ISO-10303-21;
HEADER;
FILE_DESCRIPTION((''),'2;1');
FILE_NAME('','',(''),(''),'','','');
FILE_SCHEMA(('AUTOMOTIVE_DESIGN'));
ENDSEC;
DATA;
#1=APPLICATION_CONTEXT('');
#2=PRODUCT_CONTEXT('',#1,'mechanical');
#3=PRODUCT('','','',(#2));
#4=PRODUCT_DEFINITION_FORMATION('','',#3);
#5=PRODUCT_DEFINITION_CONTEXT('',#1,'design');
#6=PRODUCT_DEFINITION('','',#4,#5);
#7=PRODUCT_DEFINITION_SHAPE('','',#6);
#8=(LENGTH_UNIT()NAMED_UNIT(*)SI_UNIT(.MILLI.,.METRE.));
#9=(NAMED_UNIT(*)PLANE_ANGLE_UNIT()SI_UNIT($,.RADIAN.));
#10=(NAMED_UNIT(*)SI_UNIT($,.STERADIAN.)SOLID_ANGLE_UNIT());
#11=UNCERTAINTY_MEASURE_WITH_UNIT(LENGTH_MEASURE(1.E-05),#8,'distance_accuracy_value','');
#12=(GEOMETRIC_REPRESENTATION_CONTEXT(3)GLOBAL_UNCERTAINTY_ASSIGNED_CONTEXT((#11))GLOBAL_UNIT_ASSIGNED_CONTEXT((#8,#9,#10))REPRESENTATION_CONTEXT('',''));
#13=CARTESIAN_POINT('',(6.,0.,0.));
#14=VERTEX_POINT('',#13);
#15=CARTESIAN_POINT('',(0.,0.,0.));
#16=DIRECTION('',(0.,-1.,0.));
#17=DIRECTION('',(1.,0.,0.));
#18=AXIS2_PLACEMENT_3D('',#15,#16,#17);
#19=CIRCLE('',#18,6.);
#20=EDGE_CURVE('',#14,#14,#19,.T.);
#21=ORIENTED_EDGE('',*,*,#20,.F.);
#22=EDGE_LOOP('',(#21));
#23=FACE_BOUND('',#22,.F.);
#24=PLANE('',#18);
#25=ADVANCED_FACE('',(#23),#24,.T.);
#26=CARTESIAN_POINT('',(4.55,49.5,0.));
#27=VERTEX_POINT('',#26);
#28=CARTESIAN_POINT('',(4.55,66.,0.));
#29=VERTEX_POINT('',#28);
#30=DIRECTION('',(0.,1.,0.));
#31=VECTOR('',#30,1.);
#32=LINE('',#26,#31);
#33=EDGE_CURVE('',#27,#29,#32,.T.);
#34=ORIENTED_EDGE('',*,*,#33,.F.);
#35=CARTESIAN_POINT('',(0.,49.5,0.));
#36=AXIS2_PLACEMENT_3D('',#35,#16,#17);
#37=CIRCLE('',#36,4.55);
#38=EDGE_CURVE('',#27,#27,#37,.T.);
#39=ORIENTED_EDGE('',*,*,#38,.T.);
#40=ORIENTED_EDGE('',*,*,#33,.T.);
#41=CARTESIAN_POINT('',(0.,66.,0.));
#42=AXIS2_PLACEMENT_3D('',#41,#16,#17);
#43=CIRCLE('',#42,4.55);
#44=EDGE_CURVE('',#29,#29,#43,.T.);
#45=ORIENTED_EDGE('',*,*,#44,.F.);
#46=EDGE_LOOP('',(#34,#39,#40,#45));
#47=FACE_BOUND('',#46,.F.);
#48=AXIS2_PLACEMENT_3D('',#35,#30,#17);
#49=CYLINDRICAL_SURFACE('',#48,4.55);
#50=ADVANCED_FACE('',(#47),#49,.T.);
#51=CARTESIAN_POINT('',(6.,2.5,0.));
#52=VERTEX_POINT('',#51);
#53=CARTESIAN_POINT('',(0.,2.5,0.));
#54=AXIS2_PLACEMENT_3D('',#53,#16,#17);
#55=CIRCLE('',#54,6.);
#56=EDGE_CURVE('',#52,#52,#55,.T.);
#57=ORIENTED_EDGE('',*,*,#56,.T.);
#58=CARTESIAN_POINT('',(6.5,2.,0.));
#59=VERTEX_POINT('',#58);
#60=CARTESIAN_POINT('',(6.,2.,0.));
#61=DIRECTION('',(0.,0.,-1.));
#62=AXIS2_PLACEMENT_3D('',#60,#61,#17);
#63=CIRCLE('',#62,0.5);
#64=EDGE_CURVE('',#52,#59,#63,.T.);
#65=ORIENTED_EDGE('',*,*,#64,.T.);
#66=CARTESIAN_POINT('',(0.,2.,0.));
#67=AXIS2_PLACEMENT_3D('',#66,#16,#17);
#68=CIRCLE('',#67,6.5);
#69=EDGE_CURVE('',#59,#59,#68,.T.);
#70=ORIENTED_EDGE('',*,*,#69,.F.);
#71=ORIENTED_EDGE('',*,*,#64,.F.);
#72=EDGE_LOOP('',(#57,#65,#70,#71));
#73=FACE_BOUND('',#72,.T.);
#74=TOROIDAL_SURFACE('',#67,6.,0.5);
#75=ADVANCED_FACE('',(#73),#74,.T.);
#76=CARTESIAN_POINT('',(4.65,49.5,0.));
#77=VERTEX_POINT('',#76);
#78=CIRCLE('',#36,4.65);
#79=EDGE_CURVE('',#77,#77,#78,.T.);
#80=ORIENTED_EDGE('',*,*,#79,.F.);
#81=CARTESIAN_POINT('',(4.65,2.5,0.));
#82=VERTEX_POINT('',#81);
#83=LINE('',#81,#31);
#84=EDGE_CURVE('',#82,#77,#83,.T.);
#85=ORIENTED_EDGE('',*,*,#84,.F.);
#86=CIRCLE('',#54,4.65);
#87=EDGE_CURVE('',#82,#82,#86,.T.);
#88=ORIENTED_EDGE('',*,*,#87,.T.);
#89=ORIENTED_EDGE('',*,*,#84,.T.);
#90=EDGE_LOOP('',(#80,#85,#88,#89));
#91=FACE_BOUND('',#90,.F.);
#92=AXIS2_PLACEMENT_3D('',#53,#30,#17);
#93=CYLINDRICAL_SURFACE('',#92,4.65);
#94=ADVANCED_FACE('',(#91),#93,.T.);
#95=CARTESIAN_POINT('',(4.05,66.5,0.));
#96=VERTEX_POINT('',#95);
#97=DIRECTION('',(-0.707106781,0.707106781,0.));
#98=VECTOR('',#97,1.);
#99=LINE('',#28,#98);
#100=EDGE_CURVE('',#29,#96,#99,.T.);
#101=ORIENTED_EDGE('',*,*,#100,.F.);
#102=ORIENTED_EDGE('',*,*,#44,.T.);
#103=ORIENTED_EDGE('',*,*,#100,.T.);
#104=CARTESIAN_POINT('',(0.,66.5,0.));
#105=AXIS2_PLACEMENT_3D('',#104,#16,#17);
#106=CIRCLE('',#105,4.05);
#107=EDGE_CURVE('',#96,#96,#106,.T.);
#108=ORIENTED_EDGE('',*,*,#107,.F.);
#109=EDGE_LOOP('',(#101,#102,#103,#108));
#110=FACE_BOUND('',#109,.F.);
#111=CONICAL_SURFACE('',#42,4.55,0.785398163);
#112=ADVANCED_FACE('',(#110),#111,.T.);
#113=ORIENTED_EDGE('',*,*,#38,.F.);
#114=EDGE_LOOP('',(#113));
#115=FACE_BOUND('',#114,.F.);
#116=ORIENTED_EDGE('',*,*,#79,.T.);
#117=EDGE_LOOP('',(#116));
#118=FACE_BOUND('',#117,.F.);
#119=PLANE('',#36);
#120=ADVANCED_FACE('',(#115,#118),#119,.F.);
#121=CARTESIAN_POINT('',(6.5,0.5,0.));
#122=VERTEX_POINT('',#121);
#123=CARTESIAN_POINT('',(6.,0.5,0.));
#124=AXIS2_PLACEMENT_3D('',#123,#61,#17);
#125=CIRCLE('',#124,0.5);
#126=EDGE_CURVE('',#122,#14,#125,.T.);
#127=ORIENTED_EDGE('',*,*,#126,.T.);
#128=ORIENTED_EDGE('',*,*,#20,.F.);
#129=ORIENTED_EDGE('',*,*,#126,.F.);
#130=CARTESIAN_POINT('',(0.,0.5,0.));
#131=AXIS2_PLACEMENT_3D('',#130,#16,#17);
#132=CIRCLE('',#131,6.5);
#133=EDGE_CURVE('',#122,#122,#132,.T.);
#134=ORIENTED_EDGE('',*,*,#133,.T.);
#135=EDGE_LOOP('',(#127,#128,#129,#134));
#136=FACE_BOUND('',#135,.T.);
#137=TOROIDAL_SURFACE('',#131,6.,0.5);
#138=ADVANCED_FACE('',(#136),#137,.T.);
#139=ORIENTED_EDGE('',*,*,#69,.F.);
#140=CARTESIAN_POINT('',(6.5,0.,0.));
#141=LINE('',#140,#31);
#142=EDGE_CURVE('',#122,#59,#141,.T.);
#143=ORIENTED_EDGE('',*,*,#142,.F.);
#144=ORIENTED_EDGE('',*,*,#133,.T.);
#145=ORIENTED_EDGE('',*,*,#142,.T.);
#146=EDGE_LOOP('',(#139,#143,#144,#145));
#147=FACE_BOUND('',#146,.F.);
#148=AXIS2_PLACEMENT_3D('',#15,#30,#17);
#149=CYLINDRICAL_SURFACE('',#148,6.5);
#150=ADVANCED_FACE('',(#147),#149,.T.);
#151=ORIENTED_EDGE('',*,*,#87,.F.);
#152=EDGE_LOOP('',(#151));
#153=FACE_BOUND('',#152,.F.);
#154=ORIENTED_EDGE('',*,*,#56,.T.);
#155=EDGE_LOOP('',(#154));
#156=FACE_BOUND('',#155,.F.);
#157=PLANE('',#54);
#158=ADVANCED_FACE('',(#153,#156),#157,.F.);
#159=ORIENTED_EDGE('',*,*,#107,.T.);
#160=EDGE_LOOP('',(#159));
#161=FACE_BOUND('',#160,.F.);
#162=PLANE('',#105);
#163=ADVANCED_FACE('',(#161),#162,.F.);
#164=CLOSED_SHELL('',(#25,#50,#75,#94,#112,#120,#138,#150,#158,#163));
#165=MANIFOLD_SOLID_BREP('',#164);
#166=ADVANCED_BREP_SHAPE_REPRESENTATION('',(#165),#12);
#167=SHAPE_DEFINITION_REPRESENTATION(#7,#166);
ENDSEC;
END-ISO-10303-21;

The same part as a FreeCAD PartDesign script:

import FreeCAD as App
import Part
import Sketcher
from FreeCAD import Vector


def edges_at(feature, points):
    """Names of the edges that pass closest to the given points."""
    edges = feature.Shape.Edges
    near = lambda p: min(range(len(edges)), key=lambda i: edges[i].distToShape(Part.Vertex(*p))[0])
    return sorted({f"Edge{near(p) + 1}" for p in points})

doc = App.newDocument("Part")
body = doc.addObject("PartDesign::Body", "Body")

sketch1 = body.newObject("Sketcher::SketchObject", "Sketch")
sketch1.AttachmentSupport = (doc.getObject("XY_Plane"), [""])
sketch1.MapMode = "FlatFace"
sketch1.addGeometry(Part.LineSegment(Vector(0, 66.5, 0), Vector(0, 0, 0)), False)
sketch1.addGeometry(Part.LineSegment(Vector(0, 0, 0), Vector(6.5, 0, 0)), False)
sketch1.addGeometry(Part.LineSegment(Vector(6.5, 0, 0), Vector(6.5, 2.5, 0)), False)
sketch1.addGeometry(Part.LineSegment(Vector(6.5, 2.5, 0), Vector(4.65, 2.5, 0)), False)
sketch1.addGeometry(Part.LineSegment(Vector(4.65, 2.5, 0), Vector(4.65, 49.5, 0)), False)
sketch1.addGeometry(Part.LineSegment(Vector(4.65, 49.5, 0), Vector(4.55, 49.5, 0)), False)
sketch1.addGeometry(Part.LineSegment(Vector(4.55, 49.5, 0), Vector(4.55, 66.5, 0)), False)
sketch1.addGeometry(Part.LineSegment(Vector(4.55, 66.5, 0), Vector(0, 66.5, 0)), False)
sketch1.addConstraint(Sketcher.Constraint("Coincident", 0, 2, 1, 1))
sketch1.addConstraint(Sketcher.Constraint("Coincident", 1, 2, 2, 1))
sketch1.addConstraint(Sketcher.Constraint("Coincident", 2, 2, 3, 1))
sketch1.addConstraint(Sketcher.Constraint("Coincident", 3, 2, 4, 1))
sketch1.addConstraint(Sketcher.Constraint("Coincident", 4, 2, 5, 1))
sketch1.addConstraint(Sketcher.Constraint("Coincident", 5, 2, 6, 1))
sketch1.addConstraint(Sketcher.Constraint("Coincident", 6, 2, 7, 1))
sketch1.addConstraint(Sketcher.Constraint("Coincident", 7, 2, 0, 1))
sketch1.addConstraint(Sketcher.Constraint("Vertical", 0))
sketch1.addConstraint(Sketcher.Constraint("Horizontal", 1))
sketch1.addConstraint(Sketcher.Constraint("Vertical", 2))
sketch1.addConstraint(Sketcher.Constraint("Horizontal", 3))
sketch1.addConstraint(Sketcher.Constraint("Vertical", 4))
sketch1.addConstraint(Sketcher.Constraint("Horizontal", 5))
sketch1.addConstraint(Sketcher.Constraint("Vertical", 6))
sketch1.addConstraint(Sketcher.Constraint("Horizontal", 7))
sketch1.addConstraint(Sketcher.Constraint("Coincident", 0, 2, -1, 1))
sketch1.addConstraint(Sketcher.Constraint("DistanceY", 6, 1, 6, 2, 17.0))
sketch1.addConstraint(Sketcher.Constraint("DistanceX", 5, 2, 5, 1, 0.1))
sketch1.addConstraint(Sketcher.Constraint("DistanceY", 2, 1, 2, 2, 2.5))
sketch1.addConstraint(Sketcher.Constraint("DistanceY", 3, 2, 6, 2, 64.0))
sketch1.addConstraint(Sketcher.Constraint("DistanceX", 1, 1, 1, 2, 6.5))
sketch1.addConstraint(Sketcher.Constraint("DistanceX", 3, 2, 3, 1, 1.85))
revolution = body.newObject("PartDesign::Revolution", "Revolution")
revolution.Profile = sketch1
revolution.ReferenceAxis = (sketch1, ["V_Axis"])
revolution.Angle = 360
doc.recompute()

fillet = body.newObject("PartDesign::Fillet", "Fillet")
fillet.Base = (revolution, edges_at(revolution, [(-6.5, 2.5, 0), (-6.5, 0, 0)]))
fillet.Radius = 0.5
doc.recompute()

chamfer = body.newObject("PartDesign::Chamfer", "Chamfer")
chamfer.Base = (fillet, edges_at(fillet, [(-4.55, 66.5, 0)]))
chamfer.Size = 0.5

doc.recompute()
